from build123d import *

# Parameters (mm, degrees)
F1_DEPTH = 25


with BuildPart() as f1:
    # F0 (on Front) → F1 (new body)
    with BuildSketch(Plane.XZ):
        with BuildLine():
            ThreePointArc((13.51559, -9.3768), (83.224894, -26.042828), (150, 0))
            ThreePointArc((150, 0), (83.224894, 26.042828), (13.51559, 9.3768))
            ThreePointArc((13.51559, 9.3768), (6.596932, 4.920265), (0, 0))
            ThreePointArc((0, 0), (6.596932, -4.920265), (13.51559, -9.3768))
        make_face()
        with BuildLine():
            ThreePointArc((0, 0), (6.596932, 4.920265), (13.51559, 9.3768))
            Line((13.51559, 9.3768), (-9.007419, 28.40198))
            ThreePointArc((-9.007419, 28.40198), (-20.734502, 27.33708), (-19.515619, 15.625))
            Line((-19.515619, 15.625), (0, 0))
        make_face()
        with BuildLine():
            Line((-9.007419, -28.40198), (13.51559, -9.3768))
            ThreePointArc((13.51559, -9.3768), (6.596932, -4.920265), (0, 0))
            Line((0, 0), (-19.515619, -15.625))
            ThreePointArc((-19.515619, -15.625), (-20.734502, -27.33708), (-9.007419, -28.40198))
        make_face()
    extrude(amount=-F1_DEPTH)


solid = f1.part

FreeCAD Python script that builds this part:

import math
import FreeCAD as App
import Part
import Sketcher
from FreeCAD import Vector
Q = App.Units.Quantity

doc = App.newDocument("Part")
body = doc.addObject("PartDesign::Body", "Body")

# Sketch on XZ plane
sketch1 = doc.addObject("Sketcher::SketchObject", "Sketch")
body.addObject(sketch1)
sketch1.AttachmentSupport = (doc.XZ_Plane, [""])
sketch1.MapMode = "FlatFace"
sketch1.addGeometry(Part.ArcOfCircle(Part.Circle(Vector(75, 93.674969, 0), Vector(0, 0, 1), 119.999999), math.radians(-120.82183), math.radians(-51.317812)), False)
sketch1.addGeometry(Part.ArcOfCircle(Part.Circle(Vector(75, -93.674969, 0), Vector(0, 0, 1), 119.999999), math.radians(51.317812), math.radians(120.82183)), False)
sketch1.addGeometry(Part.LineSegment(Vector(13.51559, 9.3768, 0), Vector(-9.007419, 28.40198, 0)), False)
sketch1.addGeometry(Part.ArcOfCircle(Part.Circle(Vector(-14.345461, 22.082526, 0), Vector(0, 0, 1), 8.272254), math.radians(49.812224), math.radians(231.317815)), False)
sketch1.addGeometry(Part.LineSegment(Vector(-19.515619, 15.625, 0), Vector(0, 0, 0)), False)
sketch1.addGeometry(Part.LineSegment(Vector(0, 0, 0), Vector(-19.515619, -15.625, 0)), False)
sketch1.addGeometry(Part.ArcOfCircle(Part.Circle(Vector(-14.345461, -22.082526, 0), Vector(0, 0, 1), 8.272254), math.radians(128.682185), math.radians(310.187776)), False)
sketch1.addGeometry(Part.LineSegment(Vector(-9.007419, -28.40198, 0), Vector(13.51559, -9.3768, 0)), False)
sketch1.addConstraint(Sketcher.Constraint("Coincident", 0, 2, 1, 1))
sketch1.addConstraint(Sketcher.Constraint("Coincident", 1, 2, 2, 1))
sketch1.addConstraint(Sketcher.Constraint("Tangent", 2, 2, 3, 1))
sketch1.addConstraint(Sketcher.Constraint("Tangent", 3, 2, 4, 1))
sketch1.addConstraint(Sketcher.Constraint("Coincident", 4, 2, 5, 1))
sketch1.addConstraint(Sketcher.Constraint("Tangent", 5, 2, 6, 1))
sketch1.addConstraint(Sketcher.Constraint("Tangent", 6, 2, 7, 1))
sketch1.addConstraint(Sketcher.Constraint("Coincident", 7, 2, 0, 1))
sketch1.addConstraint(Sketcher.Constraint("Coincident", 4, 2, -1, 1))
sketch1.addConstraint(Sketcher.Constraint("Equal", 0, 1))
sketch1.addConstraint(Sketcher.Constraint("Equal", 3, 6))
sketch1.addConstraint(Sketcher.Constraint("Symmetric", 0, 3, 1, 3, -1))
sketch1.addConstraint(Sketcher.Constraint("Symmetric", 3, 3, 6, 3, -1))
sketch1.addConstraint(Sketcher.Constraint("Vertical", 2, 2, 6, 2))
sketch1.addConstraint(Sketcher.Constraint("Radius", 0, Q("119.999999 mm")))
sketch1.addConstraint(Sketcher.Constraint("Distance", 4, Q("25 mm")))
sketch1.addConstraint(Sketcher.Constraint("DistanceX", -1, 1, 0, 3, Q("75 mm")))
sketch1.addConstraint(Sketcher.Constraint("DistanceX", -1, 1, 0, 2, Q("150 mm")))
sketch1.addConstraint(Sketcher.Constraint("DistanceY", 5, 2, 3, 2, Q("31.25 mm")))
sketch1.addConstraint(Sketcher.Constraint("Radius", 3, Q("8.272254 mm")))
sketch1.addConstraint(Sketcher.Constraint("DistanceY", -1, 1, 1, 2, Q("9.3768 mm")))
pad1 = doc.addObject("PartDesign::Pad", "Pad")
body.addObject(pad1)
pad1.Profile = sketch1
pad1.Length = 25
pad1.Reversed = True

doc.recompute()
